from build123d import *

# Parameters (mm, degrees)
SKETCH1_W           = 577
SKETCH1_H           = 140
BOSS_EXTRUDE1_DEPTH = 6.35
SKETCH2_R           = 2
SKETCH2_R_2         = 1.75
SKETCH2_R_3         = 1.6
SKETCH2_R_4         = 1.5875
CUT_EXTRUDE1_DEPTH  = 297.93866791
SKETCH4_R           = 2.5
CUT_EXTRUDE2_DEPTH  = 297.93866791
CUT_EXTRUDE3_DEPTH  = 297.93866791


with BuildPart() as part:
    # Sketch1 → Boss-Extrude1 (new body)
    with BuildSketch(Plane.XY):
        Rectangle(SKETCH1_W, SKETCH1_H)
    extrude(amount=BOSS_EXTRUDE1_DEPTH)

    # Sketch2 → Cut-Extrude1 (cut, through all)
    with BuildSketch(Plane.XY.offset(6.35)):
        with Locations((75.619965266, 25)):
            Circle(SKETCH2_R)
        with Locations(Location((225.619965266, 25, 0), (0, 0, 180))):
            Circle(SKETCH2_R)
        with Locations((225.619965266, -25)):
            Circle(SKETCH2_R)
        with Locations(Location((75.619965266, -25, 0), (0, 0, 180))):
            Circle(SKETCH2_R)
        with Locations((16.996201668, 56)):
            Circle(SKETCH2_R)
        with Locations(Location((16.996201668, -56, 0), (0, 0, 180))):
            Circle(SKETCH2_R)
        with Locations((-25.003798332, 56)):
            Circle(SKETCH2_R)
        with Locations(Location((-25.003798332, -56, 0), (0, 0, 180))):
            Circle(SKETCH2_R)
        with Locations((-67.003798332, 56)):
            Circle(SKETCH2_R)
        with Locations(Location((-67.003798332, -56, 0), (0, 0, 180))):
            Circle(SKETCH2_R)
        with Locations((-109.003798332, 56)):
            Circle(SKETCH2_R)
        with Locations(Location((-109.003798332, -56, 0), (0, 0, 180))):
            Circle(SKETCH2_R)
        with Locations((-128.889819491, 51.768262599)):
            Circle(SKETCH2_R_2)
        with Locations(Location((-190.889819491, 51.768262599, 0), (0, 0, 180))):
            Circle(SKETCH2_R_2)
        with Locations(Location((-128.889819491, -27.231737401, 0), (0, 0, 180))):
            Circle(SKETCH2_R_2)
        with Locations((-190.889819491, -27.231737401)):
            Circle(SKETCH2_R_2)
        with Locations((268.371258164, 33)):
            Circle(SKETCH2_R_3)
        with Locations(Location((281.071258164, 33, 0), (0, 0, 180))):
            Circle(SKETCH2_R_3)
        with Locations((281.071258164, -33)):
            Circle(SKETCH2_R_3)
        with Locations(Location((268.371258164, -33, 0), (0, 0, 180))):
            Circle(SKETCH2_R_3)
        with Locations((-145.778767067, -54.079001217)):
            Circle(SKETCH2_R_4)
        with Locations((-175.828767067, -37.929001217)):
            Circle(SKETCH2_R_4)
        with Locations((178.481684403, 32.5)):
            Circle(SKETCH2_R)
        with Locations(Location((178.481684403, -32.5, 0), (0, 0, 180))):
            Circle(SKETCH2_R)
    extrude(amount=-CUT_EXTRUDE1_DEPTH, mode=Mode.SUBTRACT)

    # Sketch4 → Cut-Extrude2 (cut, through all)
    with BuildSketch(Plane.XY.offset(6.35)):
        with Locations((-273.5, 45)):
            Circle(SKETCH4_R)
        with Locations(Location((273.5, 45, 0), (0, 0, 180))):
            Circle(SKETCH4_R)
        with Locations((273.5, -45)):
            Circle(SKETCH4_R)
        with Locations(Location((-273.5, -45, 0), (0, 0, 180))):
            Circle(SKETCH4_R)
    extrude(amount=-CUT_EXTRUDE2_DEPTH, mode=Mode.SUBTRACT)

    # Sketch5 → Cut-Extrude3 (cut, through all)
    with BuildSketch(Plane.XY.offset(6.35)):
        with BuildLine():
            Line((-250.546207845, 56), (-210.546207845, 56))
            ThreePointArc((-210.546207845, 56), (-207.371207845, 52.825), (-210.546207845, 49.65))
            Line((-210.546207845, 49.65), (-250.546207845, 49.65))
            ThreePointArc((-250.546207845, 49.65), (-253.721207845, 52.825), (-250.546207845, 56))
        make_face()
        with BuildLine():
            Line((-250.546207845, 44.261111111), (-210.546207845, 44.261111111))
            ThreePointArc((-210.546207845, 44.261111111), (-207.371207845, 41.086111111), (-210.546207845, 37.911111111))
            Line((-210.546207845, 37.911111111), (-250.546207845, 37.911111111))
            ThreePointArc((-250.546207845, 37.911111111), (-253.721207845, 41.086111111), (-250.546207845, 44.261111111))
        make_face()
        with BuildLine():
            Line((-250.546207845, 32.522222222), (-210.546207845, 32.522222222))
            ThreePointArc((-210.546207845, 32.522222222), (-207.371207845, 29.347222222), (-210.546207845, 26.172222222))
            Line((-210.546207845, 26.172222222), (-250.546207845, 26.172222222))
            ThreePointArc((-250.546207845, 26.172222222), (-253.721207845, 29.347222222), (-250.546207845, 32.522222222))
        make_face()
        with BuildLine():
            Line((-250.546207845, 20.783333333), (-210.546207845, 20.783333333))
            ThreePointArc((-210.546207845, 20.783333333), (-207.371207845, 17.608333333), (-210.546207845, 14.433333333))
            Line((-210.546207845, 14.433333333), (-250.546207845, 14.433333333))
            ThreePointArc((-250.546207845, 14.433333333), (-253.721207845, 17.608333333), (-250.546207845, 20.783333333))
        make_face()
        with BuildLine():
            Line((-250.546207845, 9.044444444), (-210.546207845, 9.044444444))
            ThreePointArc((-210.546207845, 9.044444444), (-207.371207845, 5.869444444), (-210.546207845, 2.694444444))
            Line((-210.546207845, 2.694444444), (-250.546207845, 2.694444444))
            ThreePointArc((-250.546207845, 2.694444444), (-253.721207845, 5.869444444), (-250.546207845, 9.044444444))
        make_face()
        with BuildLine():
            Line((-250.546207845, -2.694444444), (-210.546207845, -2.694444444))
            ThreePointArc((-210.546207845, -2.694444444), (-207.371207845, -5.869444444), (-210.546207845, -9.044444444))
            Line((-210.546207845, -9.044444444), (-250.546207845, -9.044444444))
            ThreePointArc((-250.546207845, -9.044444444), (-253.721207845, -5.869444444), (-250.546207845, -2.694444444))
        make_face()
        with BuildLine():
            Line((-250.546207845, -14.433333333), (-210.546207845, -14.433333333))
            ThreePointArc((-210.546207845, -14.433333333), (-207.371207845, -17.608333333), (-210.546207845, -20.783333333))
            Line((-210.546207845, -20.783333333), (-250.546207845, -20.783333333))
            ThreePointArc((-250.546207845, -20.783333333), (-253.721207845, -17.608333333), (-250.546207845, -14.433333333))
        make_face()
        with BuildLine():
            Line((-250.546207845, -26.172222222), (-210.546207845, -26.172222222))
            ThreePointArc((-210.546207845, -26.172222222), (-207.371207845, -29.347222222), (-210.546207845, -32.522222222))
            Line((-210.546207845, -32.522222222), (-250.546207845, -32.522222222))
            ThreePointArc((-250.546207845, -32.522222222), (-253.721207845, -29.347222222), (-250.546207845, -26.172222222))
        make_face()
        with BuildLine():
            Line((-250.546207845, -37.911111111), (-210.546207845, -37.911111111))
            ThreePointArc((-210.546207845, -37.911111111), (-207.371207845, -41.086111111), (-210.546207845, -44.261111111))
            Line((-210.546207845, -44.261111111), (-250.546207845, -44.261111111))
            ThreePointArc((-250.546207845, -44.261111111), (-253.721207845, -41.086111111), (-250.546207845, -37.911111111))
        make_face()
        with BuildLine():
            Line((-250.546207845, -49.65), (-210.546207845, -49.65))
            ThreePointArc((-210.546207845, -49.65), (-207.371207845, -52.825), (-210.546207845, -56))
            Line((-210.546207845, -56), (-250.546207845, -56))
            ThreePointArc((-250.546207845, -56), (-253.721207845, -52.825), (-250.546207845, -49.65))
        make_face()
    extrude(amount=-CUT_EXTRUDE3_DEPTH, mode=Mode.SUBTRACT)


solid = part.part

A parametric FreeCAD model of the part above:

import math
import FreeCAD as App
import Part
import Sketcher

V = App.Vector


def add_polygon(sketch, points):
    """Adds a closed chain of lines whose ends are joined by coincident constraints."""
    first, n = sketch.GeometryCount, len(points)
    for a, b in zip(points, points[1:] + points[:1]):
        sketch.addGeometry(Part.LineSegment(App.Vector(*a, 0), App.Vector(*b, 0)), False)
    for i in range(n):
        sketch.addConstraint(Sketcher.Constraint("Coincident", first + i, 2, first + (i + 1) % n, 1))

doc = App.newDocument("Part")
body = doc.addObject("PartDesign::Body", "Body")

sketch1 = body.newObject("Sketcher::SketchObject", "Sketch")
sketch1.AttachmentSupport = (doc.getObject("XY_Plane"), [""])
sketch1.MapMode = "FlatFace"
add_polygon(sketch1, [(-288, 70), (-288, -70), (288, -70), (288, 70)])
sketch1.addConstraint(Sketcher.Constraint("Vertical", 0))
sketch1.addConstraint(Sketcher.Constraint("Horizontal", 1))
sketch1.addConstraint(Sketcher.Constraint("Vertical", 2))
sketch1.addConstraint(Sketcher.Constraint("Horizontal", 3))
sketch1.addConstraint(Sketcher.Constraint("Symmetric", 0, 2, 2, 2, -1, 1))
sketch1.addConstraint(Sketcher.Constraint("DistanceX", 1, 1, 1, 2, 577.0))
sketch1.addConstraint(Sketcher.Constraint("DistanceY", 0, 2, 0, 1, 140.0))
pad1 = body.newObject("PartDesign::Pad", "Pad")
pad1.Profile = sketch1
pad1.Length = 6.35

sketch2 = body.newObject("Sketcher::SketchObject", "Sketch001")
sketch2.AttachmentSupport = (doc.getObject("XY_Plane"), [""])
sketch2.MapMode = "FlatFace"
sketch2.AttachmentOffset = App.Placement(V(0, 0, 6.35), App.Rotation())
sketch2.addGeometry(Part.Circle(V(75.6, 25, 0), V(0, 0, 1), 2), False)
sketch2.addGeometry(Part.Circle(V(225.6, 25, 0), V(0, 0, 1), 2), False)
sketch2.addGeometry(Part.Circle(V(225.6, -25, 0), V(0, 0, 1), 2), False)
sketch2.addGeometry(Part.Circle(V(75.6, -25, 0), V(0, 0, 1), 2), False)
sketch2.addGeometry(Part.Circle(V(17, 56, 0), V(0, 0, 1), 2), False)
sketch2.addGeometry(Part.Circle(V(17, -56, 0), V(0, 0, 1), 2), False)
sketch2.addGeometry(Part.Circle(V(-25, 56, 0), V(0, 0, 1), 2), False)
sketch2.addGeometry(Part.Circle(V(-25, -56, 0), V(0, 0, 1), 2), False)
sketch2.addGeometry(Part.Circle(V(-67, 56, 0), V(0, 0, 1), 2), False)
sketch2.addGeometry(Part.Circle(V(-67, -56, 0), V(0, 0, 1), 2), False)
sketch2.addGeometry(Part.Circle(V(-109, 56, 0), V(0, 0, 1), 2), False)
sketch2.addGeometry(Part.Circle(V(-109, -56, 0), V(0, 0, 1), 2), False)
sketch2.addGeometry(Part.Circle(V(-128.9, 51.8, 0), V(0, 0, 1), 1.8), False)
sketch2.addGeometry(Part.Circle(V(-190.9, 51.8, 0), V(0, 0, 1), 1.8), False)
sketch2.addGeometry(Part.Circle(V(-128.9, -27.2, 0), V(0, 0, 1), 1.8), False)
sketch2.addGeometry(Part.Circle(V(-190.9, -27.2, 0), V(0, 0, 1), 1.8), False)
sketch2.addGeometry(Part.Circle(V(268.4, 33, 0), V(0, 0, 1), 1.6), False)
sketch2.addGeometry(Part.Circle(V(281.1, 33, 0), V(0, 0, 1), 1.6), False)
sketch2.addGeometry(Part.Circle(V(281.1, -33, 0), V(0, 0, 1), 1.6), False)
sketch2.addGeometry(Part.Circle(V(268.4, -33, 0), V(0, 0, 1), 1.6), False)
sketch2.addGeometry(Part.Circle(V(-145.8, -54.1, 0), V(0, 0, 1), 1.6), False)
sketch2.addGeometry(Part.Circle(V(-175.8, -37.9, 0), V(0, 0, 1), 1.6), False)
sketch2.addGeometry(Part.Circle(V(178.5, 32.5, 0), V(0, 0, 1), 2), False)
sketch2.addGeometry(Part.Circle(V(178.5, -32.5, 0), V(0, 0, 1), 2), False)
sketch2.addConstraint(Sketcher.Constraint("Equal", 0, 1))
sketch2.addConstraint(Sketcher.Constraint("Equal", 1, 2))
sketch2.addConstraint(Sketcher.Constraint("Equal", 2, 3))
sketch2.addConstraint(Sketcher.Constraint("Equal", 3, 4))
sketch2.addConstraint(Sketcher.Constraint("Equal", 4, 5))
sketch2.addConstraint(Sketcher.Constraint("Equal", 5, 6))
sketch2.addConstraint(Sketcher.Constraint("Equal", 6, 7))
sketch2.addConstraint(Sketcher.Constraint("Equal", 7, 8))
sketch2.addConstraint(Sketcher.Constraint("Equal", 8, 9))
sketch2.addConstraint(Sketcher.Constraint("Equal", 9, 10))
sketch2.addConstraint(Sketcher.Constraint("Equal", 10, 11))
sketch2.addConstraint(Sketcher.Constraint("Equal", 12, 13))
sketch2.addConstraint(Sketcher.Constraint("Equal", 13, 14))
sketch2.addConstraint(Sketcher.Constraint("Equal", 14, 15))
sketch2.addConstraint(Sketcher.Constraint("Equal", 16, 17))
sketch2.addConstraint(Sketcher.Constraint("Equal", 17, 18))
sketch2.addConstraint(Sketcher.Constraint("Equal", 18, 19))
sketch2.addConstraint(Sketcher.Constraint("Equal", 20, 21))
sketch2.addConstraint(Sketcher.Constraint("Equal", 11, 22))
sketch2.addConstraint(Sketcher.Constraint("Equal", 22, 23))
sketch2.addConstraint(Sketcher.Constraint("Symmetric", 1, 3, 2, 3, -1))
sketch2.addConstraint(Sketcher.Constraint("Symmetric", 0, 3, 3, 3, -1))
sketch2.addConstraint(Sketcher.Constraint("Symmetric", 4, 3, 5, 3, -1))
sketch2.addConstraint(Sketcher.Constraint("Symmetric", 6, 3, 7, 3, -1))
sketch2.addConstraint(Sketcher.Constraint("Symmetric", 8, 3, 9, 3, -1))
sketch2.addConstraint(Sketcher.Constraint("Symmetric", 10, 3, 11, 3, -1))
sketch2.addConstraint(Sketcher.Constraint("Symmetric", 17, 3, 18, 3, -1))
sketch2.addConstraint(Sketcher.Constraint("Symmetric", 16, 3, 19, 3, -1))
sketch2.addConstraint(Sketcher.Constraint("Symmetric", 22, 3, 23, 3, -1))
sketch2.addConstraint(Sketcher.Constraint("Horizontal", 0, 3, 1, 3))
sketch2.addConstraint(Sketcher.Constraint("Horizontal", 4, 3, 6, 3))
sketch2.addConstraint(Sketcher.Constraint("Horizontal", 6, 3, 8, 3))
sketch2.addConstraint(Sketcher.Constraint("Horizontal", 8, 3, 10, 3))
sketch2.addConstraint(Sketcher.Constraint("Horizontal", 12, 3, 13, 3))
sketch2.addConstraint(Sketcher.Constraint("Horizontal", 14, 3, 15, 3))
sketch2.addConstraint(Sketcher.Constraint("Horizontal", 16, 3, 17, 3))
sketch2.addConstraint(Sketcher.Constraint("Vertical", 12, 3, 14, 3))
sketch2.addConstraint(Sketcher.Constraint("Vertical", 13, 3, 15, 3))
sketch2.addConstraint(Sketcher.Constraint("Diameter", 0, 4.0))
sketch2.addConstraint(Sketcher.Constraint("Diameter", 12, 3.5))
sketch2.addConstraint(Sketcher.Constraint("Diameter", 16, 3.2))
sketch2.addConstraint(Sketcher.Constraint("Diameter", 20, 3.175))
sketch2.addConstraint(Sketcher.Constraint("DistanceY", -1, 1, 0, 3, 25.0))
sketch2.addConstraint(Sketcher.Constraint("DistanceY", -1, 1, 4, 3, 56.0))
sketch2.addConstraint(Sketcher.Constraint("DistanceY", -1, 1, 16, 3, 33.0))
sketch2.addConstraint(Sketcher.Constraint("DistanceX", 0, 3, 1, 3, 150.0))
sketch2.addConstraint(Sketcher.Constraint("DistanceX", 6, 3, 4, 3, 42.0))
sketch2.addConstraint(Sketcher.Constraint("DistanceX", 8, 3, 6, 3, 42.0))
sketch2.addConstraint(Sketcher.Constraint("DistanceX", 10, 3, 8, 3, 42.0))
sketch2.addConstraint(Sketcher.Constraint("DistanceX", 13, 3, 12, 3, 62.0))
sketch2.addConstraint(Sketcher.Constraint("DistanceY", 14, 3, 12, 3, 79.0))
sketch2.addConstraint(Sketcher.Constraint("DistanceY", 23, 3, 22, 3, 65.0))
sketch2.addConstraint(Sketcher.Constraint("DistanceX", 16, 3, 17, 3, 12.7))
sketch2.addConstraint(Sketcher.Constraint("DistanceX", 21, 3, 20, 3, 30.05))
sketch2.addConstraint(Sketcher.Constraint("DistanceY", 20, 3, 21, 3, 16.15))
sketch2.addConstraint(Sketcher.Constraint("DistanceY", 20, 3, -1, 1, 54.079001))
sketch2.addConstraint(Sketcher.Constraint("DistanceX", -1, 1, 4, 3, 16.996202))
sketch2.addConstraint(Sketcher.Constraint("DistanceX", 12, 3, -1, 1, 128.889819))
sketch2.addConstraint(Sketcher.Constraint("DistanceX", -1, 1, 16, 3, 268.371258))
sketch2.addConstraint(Sketcher.Constraint("DistanceX", 20, 3, 11, 3, 36.774969))
sketch2.addConstraint(Sketcher.Constraint("DistanceX", 22, 3, 1, 3, 47.138281))
sketch2.addConstraint(Sketcher.Constraint("DistanceX", -1, 1, 0, 3, 75.619965))
sketch2.addConstraint(Sketcher.Constraint("DistanceY", -1, 1, 12, 3, 51.768263))
pocket1 = body.newObject("PartDesign::Pocket", "Pocket")
pocket1.Profile = sketch2
pocket1.Type = "ThroughAll"

sketch3 = body.newObject("Sketcher::SketchObject", "Sketch002")
sketch3.AttachmentSupport = (doc.getObject("XY_Plane"), [""])
sketch3.MapMode = "FlatFace"
sketch3.AttachmentOffset = App.Placement(V(0, 0, 6.35), App.Rotation())
sketch3.addGeometry(Part.Circle(V(-273.5, 45, 0), V(0, 0, 1), 2.5), False)
sketch3.addGeometry(Part.Circle(V(273.5, 45, 0), V(0, 0, 1), 2.5), False)
sketch3.addGeometry(Part.Circle(V(273.5, -45, 0), V(0, 0, 1), 2.5), False)
sketch3.addGeometry(Part.Circle(V(-273.5, -45, 0), V(0, 0, 1), 2.5), False)
sketch3.addConstraint(Sketcher.Constraint("Equal", 0, 1))
sketch3.addConstraint(Sketcher.Constraint("Equal", 1, 2))
sketch3.addConstraint(Sketcher.Constraint("Equal", 2, 3))
sketch3.addConstraint(Sketcher.Constraint("Symmetric", 0, 3, 2, 3, -1, 1))
sketch3.addConstraint(Sketcher.Constraint("Symmetric", 1, 3, 3, 3, -1, 1))
sketch3.addConstraint(Sketcher.Constraint("Symmetric", 0, 3, 1, 3, -2))
sketch3.addConstraint(Sketcher.Constraint("Diameter", 0, 5.0))
sketch3.addConstraint(Sketcher.Constraint("DistanceY", -1, 1, 0, 3, 45.0))
sketch3.addConstraint(Sketcher.Constraint("DistanceX", 0, 3, 1, 3, 547.0))
pocket2 = body.newObject("PartDesign::Pocket", "Pocket001")
pocket2.Profile = sketch3
pocket2.Type = "ThroughAll"

sketch4 = body.newObject("Sketcher::SketchObject", "Sketch003")
sketch4.AttachmentSupport = (doc.getObject("XY_Plane"), [""])
sketch4.MapMode = "FlatFace"
sketch4.AttachmentOffset = App.Placement(V(0, 0, 6.35), App.Rotation())
sketch4.addGeometry(Part.LineSegment(V(-210.5, 56, 0), V(-250.5, 56, 0)), False)
sketch4.addGeometry(Part.ArcOfCircle(Part.Circle(V(-250.5, 52.8, 0), V(0, 0, 1), 3.2), math.radians(90), math.radians(270)), False)
sketch4.addGeometry(Part.LineSegment(V(-250.5, 49.6, 0), V(-210.5, 49.6, 0)), False)
sketch4.addGeometry(Part.ArcOfCircle(Part.Circle(V(-210.5, 52.8, 0), V(0, 0, 1), 3.2), math.radians(-90), math.radians(90)), False)
sketch4.addGeometry(Part.LineSegment(V(-210.5, 44.3, 0), V(-250.5, 44.3, 0)), False)
sketch4.addGeometry(Part.ArcOfCircle(Part.Circle(V(-250.5, 41.1, 0), V(0, 0, 1), 3.2), math.radians(90), math.radians(270)), False)
sketch4.addGeometry(Part.LineSegment(V(-250.5, 37.9, 0), V(-210.5, 37.9, 0)), False)
sketch4.addGeometry(Part.ArcOfCircle(Part.Circle(V(-210.5, 41.1, 0), V(0, 0, 1), 3.2), math.radians(-90), math.radians(90)), False)
sketch4.addGeometry(Part.LineSegment(V(-210.5, 32.5, 0), V(-250.5, 32.5, 0)), False)
sketch4.addGeometry(Part.ArcOfCircle(Part.Circle(V(-250.5, 29.3, 0), V(0, 0, 1), 3.2), math.radians(90), math.radians(270)), False)
sketch4.addGeometry(Part.LineSegment(V(-250.5, 26.2, 0), V(-210.5, 26.2, 0)), False)
sketch4.addGeometry(Part.ArcOfCircle(Part.Circle(V(-210.5, 29.3, 0), V(0, 0, 1), 3.2), math.radians(-90), math.radians(90)), False)
sketch4.addGeometry(Part.LineSegment(V(-210.5, 20.8, 0), V(-250.5, 20.8, 0)), False)
sketch4.addGeometry(Part.ArcOfCircle(Part.Circle(V(-250.5, 17.6, 0), V(0, 0, 1), 3.2), math.radians(90), math.radians(270)), False)
sketch4.addGeometry(Part.LineSegment(V(-250.5, 14.4, 0), V(-210.5, 14.4, 0)), False)
sketch4.addGeometry(Part.ArcOfCircle(Part.Circle(V(-210.5, 17.6, 0), V(0, 0, 1), 3.2), math.radians(-90), math.radians(90)), False)
sketch4.addGeometry(Part.LineSegment(V(-210.5, 9, 0), V(-250.5, 9, 0)), False)
sketch4.addGeometry(Part.ArcOfCircle(Part.Circle(V(-250.5, 5.9, 0), V(0, 0, 1), 3.2), math.radians(90), math.radians(270)), False)
sketch4.addGeometry(Part.LineSegment(V(-250.5, 2.7, 0), V(-210.5, 2.7, 0)), False)
sketch4.addGeometry(Part.ArcOfCircle(Part.Circle(V(-210.5, 5.9, 0), V(0, 0, 1), 3.2), math.radians(-90), math.radians(90)), False)
sketch4.addGeometry(Part.LineSegment(V(-210.5, -2.7, 0), V(-250.5, -2.7, 0)), False)
sketch4.addGeometry(Part.ArcOfCircle(Part.Circle(V(-250.5, -5.9, 0), V(0, 0, 1), 3.2), math.radians(90), math.radians(270)), False)
sketch4.addGeometry(Part.LineSegment(V(-250.5, -9, 0), V(-210.5, -9, 0)), False)
sketch4.addGeometry(Part.ArcOfCircle(Part.Circle(V(-210.5, -5.9, 0), V(0, 0, 1), 3.2), math.radians(-90), math.radians(90)), False)
sketch4.addGeometry(Part.LineSegment(V(-210.5, -14.4, 0), V(-250.5, -14.4, 0)), False)
sketch4.addGeometry(Part.ArcOfCircle(Part.Circle(V(-250.5, -17.6, 0), V(0, 0, 1), 3.2), math.radians(90), math.radians(270)), False)
sketch4.addGeometry(Part.LineSegment(V(-250.5, -20.8, 0), V(-210.5, -20.8, 0)), False)
sketch4.addGeometry(Part.ArcOfCircle(Part.Circle(V(-210.5, -17.6, 0), V(0, 0, 1), 3.2), math.radians(-90), math.radians(90)), False)
sketch4.addGeometry(Part.LineSegment(V(-210.5, -26.2, 0), V(-250.5, -26.2, 0)), False)
sketch4.addGeometry(Part.ArcOfCircle(Part.Circle(V(-250.5, -29.3, 0), V(0, 0, 1), 3.2), math.radians(90), math.radians(270)), False)
sketch4.addGeometry(Part.LineSegment(V(-250.5, -32.5, 0), V(-210.5, -32.5, 0)), False)
sketch4.addGeometry(Part.ArcOfCircle(Part.Circle(V(-210.5, -29.3, 0), V(0, 0, 1), 3.2), math.radians(-90), math.radians(90)), False)
sketch4.addGeometry(Part.LineSegment(V(-210.5, -37.9, 0), V(-250.5, -37.9, 0)), False)
sketch4.addGeometry(Part.ArcOfCircle(Part.Circle(V(-250.5, -41.1, 0), V(0, 0, 1), 3.2), math.radians(90), math.radians(270)), False)
sketch4.addGeometry(Part.LineSegment(V(-250.5, -44.3, 0), V(-210.5, -44.3, 0)), False)
sketch4.addGeometry(Part.ArcOfCircle(Part.Circle(V(-210.5, -41.1, 0), V(0, 0, 1), 3.2), math.radians(-90), math.radians(90)), False)
sketch4.addGeometry(Part.LineSegment(V(-210.5, -49.6, 0), V(-250.5, -49.6, 0)), False)
sketch4.addGeometry(Part.ArcOfCircle(Part.Circle(V(-250.5, -52.8, 0), V(0, 0, 1), 3.2), math.radians(90), math.radians(270)), False)
sketch4.addGeometry(Part.LineSegment(V(-250.5, -56, 0), V(-210.5, -56, 0)), False)
sketch4.addGeometry(Part.ArcOfCircle(Part.Circle(V(-210.5, -52.8, 0), V(0, 0, 1), 3.2), math.radians(-90), math.radians(90)), False)
sketch4.addConstraint(Sketcher.Constraint("Tangent", 0, 2, 1, 1))
sketch4.addConstraint(Sketcher.Constraint("Tangent", 1, 2, 2, 1))
sketch4.addConstraint(Sketcher.Constraint("Tangent", 2, 2, 3, 1))
sketch4.addConstraint(Sketcher.Constraint("Tangent", 3, 2, 0, 1))
sketch4.addConstraint(Sketcher.Constraint("Tangent", 4, 2, 5, 1))
sketch4.addConstraint(Sketcher.Constraint("Tangent", 5, 2, 6, 1))
sketch4.addConstraint(Sketcher.Constraint("Tangent", 6, 2, 7, 1))
sketch4.addConstraint(Sketcher.Constraint("Tangent", 7, 2, 4, 1))
sketch4.addConstraint(Sketcher.Constraint("Tangent", 8, 2, 9, 1))
sketch4.addConstraint(Sketcher.Constraint("Tangent", 9, 2, 10, 1))
sketch4.addConstraint(Sketcher.Constraint("Tangent", 10, 2, 11, 1))
sketch4.addConstraint(Sketcher.Constraint("Tangent", 11, 2, 8, 1))
sketch4.addConstraint(Sketcher.Constraint("Tangent", 12, 2, 13, 1))
sketch4.addConstraint(Sketcher.Constraint("Tangent", 13, 2, 14, 1))
sketch4.addConstraint(Sketcher.Constraint("Tangent", 14, 2, 15, 1))
sketch4.addConstraint(Sketcher.Constraint("Tangent", 15, 2, 12, 1))
sketch4.addConstraint(Sketcher.Constraint("Tangent", 16, 2, 17, 1))
sketch4.addConstraint(Sketcher.Constraint("Tangent", 17, 2, 18, 1))
sketch4.addConstraint(Sketcher.Constraint("Tangent", 18, 2, 19, 1))
sketch4.addConstraint(Sketcher.Constraint("Tangent", 19, 2, 16, 1))
sketch4.addConstraint(Sketcher.Constraint("Tangent", 20, 2, 21, 1))
sketch4.addConstraint(Sketcher.Constraint("Tangent", 21, 2, 22, 1))
sketch4.addConstraint(Sketcher.Constraint("Tangent", 22, 2, 23, 1))
sketch4.addConstraint(Sketcher.Constraint("Tangent", 23, 2, 20, 1))
sketch4.addConstraint(Sketcher.Constraint("Tangent", 24, 2, 25, 1))
sketch4.addConstraint(Sketcher.Constraint("Tangent", 25, 2, 26, 1))
sketch4.addConstraint(Sketcher.Constraint("Tangent", 26, 2, 27, 1))
sketch4.addConstraint(Sketcher.Constraint("Tangent", 27, 2, 24, 1))
sketch4.addConstraint(Sketcher.Constraint("Tangent", 28, 2, 29, 1))
sketch4.addConstraint(Sketcher.Constraint("Tangent", 29, 2, 30, 1))
sketch4.addConstraint(Sketcher.Constraint("Tangent", 30, 2, 31, 1))
sketch4.addConstraint(Sketcher.Constraint("Tangent", 31, 2, 28, 1))
sketch4.addConstraint(Sketcher.Constraint("Tangent", 32, 2, 33, 1))
sketch4.addConstraint(Sketcher.Constraint("Tangent", 33, 2, 34, 1))
sketch4.addConstraint(Sketcher.Constraint("Tangent", 34, 2, 35, 1))
sketch4.addConstraint(Sketcher.Constraint("Tangent", 35, 2, 32, 1))
sketch4.addConstraint(Sketcher.Constraint("Tangent", 36, 2, 37, 1))
sketch4.addConstraint(Sketcher.Constraint("Tangent", 37, 2, 38, 1))
sketch4.addConstraint(Sketcher.Constraint("Tangent", 38, 2, 39, 1))
sketch4.addConstraint(Sketcher.Constraint("Tangent", 39, 2, 36, 1))
sketch4.addConstraint(Sketcher.Constraint("Horizontal", 0))
sketch4.addConstraint(Sketcher.Constraint("Horizontal", 2))
sketch4.addConstraint(Sketcher.Constraint("Horizontal", 4))
sketch4.addConstraint(Sketcher.Constraint("Horizontal", 6))
sketch4.addConstraint(Sketcher.Constraint("Horizontal", 8))
sketch4.addConstraint(Sketcher.Constraint("Horizontal", 10))
sketch4.addConstraint(Sketcher.Constraint("Horizontal", 12))
sketch4.addConstraint(Sketcher.Constraint("Horizontal", 14))
sketch4.addConstraint(Sketcher.Constraint("Horizontal", 16))
sketch4.addConstraint(Sketcher.Constraint("Horizontal", 18))
sketch4.addConstraint(Sketcher.Constraint("Horizontal", 20))
sketch4.addConstraint(Sketcher.Constraint("Horizontal", 22))
sketch4.addConstraint(Sketcher.Constraint("Horizontal", 24))
sketch4.addConstraint(Sketcher.Constraint("Horizontal", 26))
sketch4.addConstraint(Sketcher.Constraint("Horizontal", 28))
sketch4.addConstraint(Sketcher.Constraint("Horizontal", 30))
sketch4.addConstraint(Sketcher.Constraint("Horizontal", 32))
sketch4.addConstraint(Sketcher.Constraint("Horizontal", 34))
sketch4.addConstraint(Sketcher.Constraint("Horizontal", 36))
sketch4.addConstraint(Sketcher.Constraint("Horizontal", 38))
sketch4.addConstraint(Sketcher.Constraint("Equal", 3, 5))
sketch4.addConstraint(Sketcher.Constraint("Equal", 7, 9))
sketch4.addConstraint(Sketcher.Constraint("Equal", 11, 13))
sketch4.addConstraint(Sketcher.Constraint("Equal", 15, 17))
sketch4.addConstraint(Sketcher.Constraint("Equal", 19, 21))
sketch4.addConstraint(Sketcher.Constraint("Equal", 23, 25))
sketch4.addConstraint(Sketcher.Constraint("Equal", 27, 29))
sketch4.addConstraint(Sketcher.Constraint("Equal", 31, 33))
sketch4.addConstraint(Sketcher.Constraint("Equal", 35, 37))
sketch4.addConstraint(Sketcher.Constraint("Symmetric", 17, 3, 21, 3, -1))
sketch4.addConstraint(Sketcher.Constraint("Symmetric", 13, 3, 25, 3, -1))
sketch4.addConstraint(Sketcher.Constraint("Symmetric", 9, 3, 29, 3, -1))
sketch4.addConstraint(Sketcher.Constraint("Symmetric", 5, 3, 33, 3, -1))
sketch4.addConstraint(Sketcher.Constraint("Symmetric", 1, 3, 37, 3, -1))
sketch4.addConstraint(Sketcher.Constraint("Vertical", 1, 3, 5, 3))
sketch4.addConstraint(Sketcher.Constraint("Vertical", 3, 3, 7, 3))
sketch4.addConstraint(Sketcher.Constraint("Vertical", 5, 3, 9, 3))
sketch4.addConstraint(Sketcher.Constraint("Vertical", 7, 3, 11, 3))
sketch4.addConstraint(Sketcher.Constraint("Vertical", 9, 3, 13, 3))
sketch4.addConstraint(Sketcher.Constraint("Vertical", 11, 3, 15, 3))
sketch4.addConstraint(Sketcher.Constraint("Vertical", 13, 3, 17, 3))
sketch4.addConstraint(Sketcher.Constraint("Vertical", 15, 3, 19, 3))
sketch4.addConstraint(Sketcher.Constraint("Vertical", 19, 3, 23, 3))
sketch4.addConstraint(Sketcher.Constraint("Vertical", 23, 3, 27, 3))
sketch4.addConstraint(Sketcher.Constraint("Vertical", 27, 3, 31, 3))
sketch4.addConstraint(Sketcher.Constraint("Vertical", 31, 3, 35, 3))
sketch4.addConstraint(Sketcher.Constraint("Vertical", 35, 3, 39, 3))
sketch4.addConstraint(Sketcher.Constraint("DistanceX", 0, 2, 0, 1, 40.0))
sketch4.addConstraint(Sketcher.Constraint("DistanceY", -1, 1, 0, 2, 56.0))
sketch4.addConstraint(Sketcher.Constraint("Radius", 1, 3.175))
sketch4.addConstraint(Sketcher.Constraint("DistanceY", -1, 1, 5, 3, 41.086111))
sketch4.addConstraint(Sketcher.Constraint("DistanceY", 9, 3, 5, 3, 11.738889))
sketch4.addConstraint(Sketcher.Constraint("DistanceY", 13, 3, 9, 3, 11.738889))
sketch4.addConstraint(Sketcher.Constraint("DistanceY", 17, 3, 13, 3, 11.738889))
sketch4.addConstraint(Sketcher.Constraint("DistanceX", 1, 3, -1, 1, 250.546208))
pocket3 = body.newObject("PartDesign::Pocket", "Pocket002")
pocket3.Profile = sketch4
pocket3.Type = "ThroughAll"

doc.recompute()
